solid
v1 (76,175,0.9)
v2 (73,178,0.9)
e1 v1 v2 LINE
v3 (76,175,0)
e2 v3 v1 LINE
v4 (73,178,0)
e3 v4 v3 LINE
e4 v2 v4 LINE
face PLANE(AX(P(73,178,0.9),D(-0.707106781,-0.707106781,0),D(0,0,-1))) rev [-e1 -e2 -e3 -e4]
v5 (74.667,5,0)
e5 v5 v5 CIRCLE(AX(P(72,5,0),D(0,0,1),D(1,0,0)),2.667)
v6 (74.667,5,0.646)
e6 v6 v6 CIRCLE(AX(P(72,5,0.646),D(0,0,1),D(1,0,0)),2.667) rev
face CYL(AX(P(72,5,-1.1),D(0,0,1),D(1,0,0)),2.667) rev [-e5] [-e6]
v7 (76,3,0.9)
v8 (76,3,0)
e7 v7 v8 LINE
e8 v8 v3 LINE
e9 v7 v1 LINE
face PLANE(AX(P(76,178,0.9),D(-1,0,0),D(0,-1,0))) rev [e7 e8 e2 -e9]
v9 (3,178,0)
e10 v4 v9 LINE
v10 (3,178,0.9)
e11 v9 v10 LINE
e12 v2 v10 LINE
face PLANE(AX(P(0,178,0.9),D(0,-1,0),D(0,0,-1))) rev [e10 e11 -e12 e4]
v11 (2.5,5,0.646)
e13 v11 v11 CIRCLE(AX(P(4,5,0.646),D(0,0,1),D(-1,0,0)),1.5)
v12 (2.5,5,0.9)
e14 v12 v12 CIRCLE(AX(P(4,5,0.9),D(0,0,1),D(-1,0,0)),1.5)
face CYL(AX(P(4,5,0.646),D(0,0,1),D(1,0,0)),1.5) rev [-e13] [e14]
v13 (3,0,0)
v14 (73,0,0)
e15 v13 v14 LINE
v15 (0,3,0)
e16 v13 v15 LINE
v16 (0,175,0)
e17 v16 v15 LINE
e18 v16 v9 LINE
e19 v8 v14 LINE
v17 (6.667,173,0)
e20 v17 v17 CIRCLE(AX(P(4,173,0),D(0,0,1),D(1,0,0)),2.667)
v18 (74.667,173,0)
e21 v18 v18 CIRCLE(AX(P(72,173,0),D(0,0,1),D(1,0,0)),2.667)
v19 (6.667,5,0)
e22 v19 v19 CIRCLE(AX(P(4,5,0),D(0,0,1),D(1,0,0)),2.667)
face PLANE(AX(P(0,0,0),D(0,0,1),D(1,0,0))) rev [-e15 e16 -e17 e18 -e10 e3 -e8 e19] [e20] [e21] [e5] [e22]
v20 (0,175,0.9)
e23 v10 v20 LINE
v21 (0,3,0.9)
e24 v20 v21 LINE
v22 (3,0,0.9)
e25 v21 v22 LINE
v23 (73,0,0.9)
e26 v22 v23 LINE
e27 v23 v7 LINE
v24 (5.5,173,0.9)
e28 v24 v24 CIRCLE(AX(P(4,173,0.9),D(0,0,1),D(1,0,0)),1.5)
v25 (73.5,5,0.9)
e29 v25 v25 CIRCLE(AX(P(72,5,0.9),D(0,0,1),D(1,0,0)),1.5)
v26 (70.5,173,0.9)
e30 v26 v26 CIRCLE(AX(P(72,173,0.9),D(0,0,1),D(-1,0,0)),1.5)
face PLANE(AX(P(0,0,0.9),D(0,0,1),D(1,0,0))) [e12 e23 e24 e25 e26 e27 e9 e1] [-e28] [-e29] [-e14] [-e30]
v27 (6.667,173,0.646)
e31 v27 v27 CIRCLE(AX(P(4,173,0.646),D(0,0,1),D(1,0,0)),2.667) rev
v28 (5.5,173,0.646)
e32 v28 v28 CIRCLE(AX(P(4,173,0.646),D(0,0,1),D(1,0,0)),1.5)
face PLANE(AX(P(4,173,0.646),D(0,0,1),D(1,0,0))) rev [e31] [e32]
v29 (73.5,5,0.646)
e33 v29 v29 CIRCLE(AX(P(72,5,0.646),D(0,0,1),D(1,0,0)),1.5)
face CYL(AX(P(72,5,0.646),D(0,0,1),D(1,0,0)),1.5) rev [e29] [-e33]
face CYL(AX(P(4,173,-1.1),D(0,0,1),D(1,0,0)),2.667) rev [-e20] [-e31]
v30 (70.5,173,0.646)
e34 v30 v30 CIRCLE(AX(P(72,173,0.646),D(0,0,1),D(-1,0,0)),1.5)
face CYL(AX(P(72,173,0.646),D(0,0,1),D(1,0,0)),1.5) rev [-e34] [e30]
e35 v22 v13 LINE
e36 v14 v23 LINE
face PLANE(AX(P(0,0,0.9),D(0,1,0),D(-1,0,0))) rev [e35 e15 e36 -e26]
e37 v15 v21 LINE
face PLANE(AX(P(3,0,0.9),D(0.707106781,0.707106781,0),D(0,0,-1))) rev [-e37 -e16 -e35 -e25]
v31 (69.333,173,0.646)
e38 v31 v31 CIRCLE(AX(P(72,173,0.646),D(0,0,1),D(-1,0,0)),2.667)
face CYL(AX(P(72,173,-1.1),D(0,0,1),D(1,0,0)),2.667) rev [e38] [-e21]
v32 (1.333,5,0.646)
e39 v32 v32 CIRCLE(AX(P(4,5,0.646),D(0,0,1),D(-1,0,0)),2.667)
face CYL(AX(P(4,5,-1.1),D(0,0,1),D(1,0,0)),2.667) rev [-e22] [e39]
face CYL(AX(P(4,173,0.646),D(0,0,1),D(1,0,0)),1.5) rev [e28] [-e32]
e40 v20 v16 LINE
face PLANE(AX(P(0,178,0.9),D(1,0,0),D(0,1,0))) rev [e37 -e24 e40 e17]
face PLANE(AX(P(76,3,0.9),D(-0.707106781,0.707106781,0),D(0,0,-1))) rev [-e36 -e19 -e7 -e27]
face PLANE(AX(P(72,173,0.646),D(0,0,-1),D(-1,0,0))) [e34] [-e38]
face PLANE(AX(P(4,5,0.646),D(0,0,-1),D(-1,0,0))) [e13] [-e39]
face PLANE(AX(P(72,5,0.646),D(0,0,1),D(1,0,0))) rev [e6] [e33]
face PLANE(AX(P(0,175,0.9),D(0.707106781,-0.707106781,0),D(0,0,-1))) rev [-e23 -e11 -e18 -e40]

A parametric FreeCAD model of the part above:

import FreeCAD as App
import Part
import Sketcher
from FreeCAD import Vector


def edges_at(feature, points):
    """Names of the edges that pass closest to the given points."""
    edges = feature.Shape.Edges
    near = lambda p: min(range(len(edges)), key=lambda i: edges[i].distToShape(Part.Vertex(*p))[0])
    return sorted({f"Edge{near(p) + 1}" for p in points})

doc = App.newDocument("Part")
body = doc.addObject("PartDesign::Body", "Body")

# Sketch on XY plane
sketch1 = body.newObject("Sketcher::SketchObject", "Sketch")
sketch1.AttachmentSupport = (doc.getObject("XY_Plane"), [""])
sketch1.MapMode = "FlatFace"
sketch1.addGeometry([
    Part.LineSegment(Vector(0, 178, 0), Vector(0, 0, 0)),
    Part.LineSegment(Vector(0, 0, 0), Vector(76, 0, 0)),
    Part.LineSegment(Vector(76, 0, 0), Vector(76, 178, 0)),
    Part.LineSegment(Vector(76, 178, 0), Vector(0, 178, 0)),
], False)
sketch1.addConstraint([
    Sketcher.Constraint("Coincident", 0, 2, 1, 1),
    Sketcher.Constraint("Coincident", 1, 2, 2, 1),
    Sketcher.Constraint("Coincident", 2, 2, 3, 1),
    Sketcher.Constraint("Coincident", 3, 2, 0, 1),
    Sketcher.Constraint("Vertical", 0),
    Sketcher.Constraint("Horizontal", 1),
    Sketcher.Constraint("Vertical", 2),
    Sketcher.Constraint("Horizontal", 3),
    Sketcher.Constraint("Coincident", 0, 2, -1, 1),
    Sketcher.Constraint("DistanceX", 1, 1, 1, 2, 76.0),
    Sketcher.Constraint("DistanceY", 0, 2, 0, 1, 178.0),
])
pad1 = body.newObject("PartDesign::Pad", "Pad")
pad1.Profile = sketch1
pad1.Length = 0.9

# Sketch on XY plane
sketch2 = body.newObject("Sketcher::SketchObject", "Sketch001")
sketch2.AttachmentSupport = (doc.getObject("XY_Plane"), [""])
sketch2.MapMode = "FlatFace"
sketch2.AttachmentOffset = App.Placement(Vector(0, 0, 0.9), App.Rotation())
sketch2.addGeometry([
    Part.Circle(Vector(4, 173, 0), Vector(0, 0, 1), 2.667),
    Part.Circle(Vector(72, 173, 0), Vector(0, 0, 1), 2.667),
    Part.Circle(Vector(72, 5, 0), Vector(0, 0, 1), 2.667),
    Part.Circle(Vector(4, 5, 0), Vector(0, 0, 1), 2.667),
], False)
sketch2.addConstraint([
    Sketcher.Constraint("Equal", 0, 1),
    Sketcher.Constraint("Equal", 1, 2),
    Sketcher.Constraint("Equal", 2, 3),
    Sketcher.Constraint("Horizontal", 0, 3, 1, 3),
    Sketcher.Constraint("Horizontal", 2, 3, 3, 3),
    Sketcher.Constraint("Vertical", 1, 3, 2, 3),
    Sketcher.Constraint("Vertical", 0, 3, 3, 3),
    Sketcher.Constraint("Diameter", 0, 5.334),
    Sketcher.Constraint("DistanceX", -1, 1, 0, 3, 4.0),
    Sketcher.Constraint("DistanceY", -1, 1, 0, 3, 173.0),
    Sketcher.Constraint("DistanceX", -1, 1, 1, 3, 72.0),
    Sketcher.Constraint("DistanceY", -1, 1, 2, 3, 5.0),
])
pocket1 = body.newObject("PartDesign::Pocket", "Pocket")
pocket1.Profile = sketch2
pocket1.Length = 2

# Sketch on XY plane
sketch3 = body.newObject("Sketcher::SketchObject", "Sketch002")
sketch3.AttachmentSupport = (doc.getObject("XY_Plane"), [""])
sketch3.MapMode = "FlatFace"
sketch3.AttachmentOffset = App.Placement(Vector(0, 0, 0.9), App.Rotation())
sketch3.addGeometry([
    Part.Circle(Vector(4, 5, 0), Vector(0, 0, 1), 2.667),  # 0
    Part.Circle(Vector(4, 5, 0), Vector(0, 0, 1), 1.5),  # 1
    Part.Circle(Vector(4, 173, 0), Vector(0, 0, 1), 2.667),  # 2
    Part.Circle(Vector(4, 173, 0), Vector(0, 0, 1), 1.5),  # 3
    Part.Circle(Vector(72, 5, 0), Vector(0, 0, 1), 2.667),  # 4
    Part.Circle(Vector(72, 5, 0), Vector(0, 0, 1), 1.5),  # 5
    Part.Circle(Vector(72, 173, 0), Vector(0, 0, 1), 2.667),  # 6
    Part.Circle(Vector(72, 173, 0), Vector(0, 0, 1), 1.5),  # 7
], False)
sketch3.addConstraint([
    Sketcher.Constraint("Coincident", 1, 3, 0, 3),
    Sketcher.Constraint("Coincident", 3, 3, 2, 3),
    Sketcher.Constraint("Coincident", 5, 3, 4, 3),
    Sketcher.Constraint("Coincident", 7, 3, 6, 3),
    Sketcher.Constraint("Equal", 0, 2),
    Sketcher.Constraint("Equal", 1, 3),
    Sketcher.Constraint("Equal", 2, 4),
    Sketcher.Constraint("Equal", 3, 5),
    Sketcher.Constraint("Equal", 4, 6),
    Sketcher.Constraint("Equal", 5, 7),
    Sketcher.Constraint("Horizontal", 1, 3, 4, 3),
    Sketcher.Constraint("Horizontal", 3, 3, 6, 3),
    Sketcher.Constraint("Vertical", 1, 3, 2, 3),
    Sketcher.Constraint("Vertical", 5, 3, 6, 3),
    Sketcher.Constraint("Diameter", 1, 3.0),
    Sketcher.Constraint("Diameter", 0, 5.334),
    Sketcher.Constraint("DistanceX", -1, 1, 0, 3, 4.0),
    Sketcher.Constraint("DistanceY", -1, 1, 0, 3, 5.0),
    Sketcher.Constraint("DistanceY", -1, 1, 2, 3, 173.0),
    Sketcher.Constraint("DistanceX", -1, 1, 4, 3, 72.0),
])
pad2 = body.newObject("PartDesign::Pad", "Pad001")
pad2.Profile = sketch3
pad2.Length = 0.254
pad2.Reversed = True
doc.recompute()

chamfer = body.newObject("PartDesign::Chamfer", "Chamfer")
chamfer.Base = (pad2, edges_at(pad2, [
    (0, 178, 0.45),
    (76, 178, 0.45),
    (76, 0, 0.45),
    (0, 0, 0.45),
]))
chamfer.Size = 3

doc.recompute()
